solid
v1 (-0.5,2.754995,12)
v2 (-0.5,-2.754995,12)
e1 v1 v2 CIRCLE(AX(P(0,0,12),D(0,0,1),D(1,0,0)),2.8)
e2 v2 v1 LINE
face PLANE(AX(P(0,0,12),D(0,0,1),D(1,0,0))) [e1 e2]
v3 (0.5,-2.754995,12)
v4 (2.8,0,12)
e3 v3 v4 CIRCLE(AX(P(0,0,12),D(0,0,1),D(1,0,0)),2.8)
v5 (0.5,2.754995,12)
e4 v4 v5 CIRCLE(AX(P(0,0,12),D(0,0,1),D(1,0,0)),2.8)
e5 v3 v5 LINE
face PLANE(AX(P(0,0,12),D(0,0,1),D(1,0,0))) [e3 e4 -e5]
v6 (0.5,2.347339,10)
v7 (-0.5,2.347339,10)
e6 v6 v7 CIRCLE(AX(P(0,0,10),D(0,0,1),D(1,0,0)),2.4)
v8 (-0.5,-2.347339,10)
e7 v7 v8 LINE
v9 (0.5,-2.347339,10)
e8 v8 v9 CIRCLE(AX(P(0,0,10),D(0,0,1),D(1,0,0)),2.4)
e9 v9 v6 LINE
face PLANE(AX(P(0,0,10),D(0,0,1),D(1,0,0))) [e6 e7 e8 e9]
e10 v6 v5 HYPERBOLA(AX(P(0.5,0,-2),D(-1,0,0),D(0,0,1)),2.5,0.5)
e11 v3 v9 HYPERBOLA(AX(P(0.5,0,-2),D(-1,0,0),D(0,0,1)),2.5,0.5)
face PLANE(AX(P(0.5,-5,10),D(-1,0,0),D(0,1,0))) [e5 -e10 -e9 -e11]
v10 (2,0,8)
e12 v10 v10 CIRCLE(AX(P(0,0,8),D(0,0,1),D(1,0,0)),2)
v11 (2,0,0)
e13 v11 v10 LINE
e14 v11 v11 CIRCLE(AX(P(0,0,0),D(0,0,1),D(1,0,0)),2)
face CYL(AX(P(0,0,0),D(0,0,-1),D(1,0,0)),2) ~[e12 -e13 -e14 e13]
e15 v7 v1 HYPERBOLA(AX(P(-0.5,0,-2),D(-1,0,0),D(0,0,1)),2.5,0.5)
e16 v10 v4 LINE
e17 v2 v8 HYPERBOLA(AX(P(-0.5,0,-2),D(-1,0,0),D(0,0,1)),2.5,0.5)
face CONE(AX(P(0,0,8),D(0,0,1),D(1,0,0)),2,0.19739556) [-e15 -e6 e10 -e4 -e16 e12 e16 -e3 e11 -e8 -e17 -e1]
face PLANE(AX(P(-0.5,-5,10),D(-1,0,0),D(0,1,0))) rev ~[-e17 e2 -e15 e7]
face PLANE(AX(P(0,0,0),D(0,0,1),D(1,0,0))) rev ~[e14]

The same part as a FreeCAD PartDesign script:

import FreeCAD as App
import Part
import Sketcher
Q = App.Units.Quantity

doc = App.newDocument("Part")
body = doc.addObject("PartDesign::Body", "Body")

sketch1 = body.newObject("Sketcher::SketchObject", "Sketch")
sketch1.AttachmentSupport = (doc.getObject("XY_Plane"), [""])
sketch1.MapMode = "FlatFace"
sketch1.AttachmentOffset = App.Placement(App.Vector(0, 0, 10), App.Rotation())
sketch1.addGeometry([
    Part.LineSegment(App.Vector(-0.5, 5, 0), App.Vector(-0.5, -5, 0)),
    Part.LineSegment(App.Vector(-0.5, -5, 0), App.Vector(0.5, -5, 0)),
    Part.LineSegment(App.Vector(0.5, -5, 0), App.Vector(0.5, 5, 0)),
    Part.LineSegment(App.Vector(0.5, 5, 0), App.Vector(-0.5, 5, 0)),
], False)
sketch1.addConstraint([
    Sketcher.Constraint("Coincident", 0, 2, 1, 1),
    Sketcher.Constraint("Coincident", 1, 2, 2, 1),
    Sketcher.Constraint("Coincident", 2, 2, 3, 1),
    Sketcher.Constraint("Coincident", 3, 2, 0, 1),
    Sketcher.Constraint("Vertical", 0),
    Sketcher.Constraint("Horizontal", 1),
    Sketcher.Constraint("Vertical", 2),
    Sketcher.Constraint("Horizontal", 3),
    Sketcher.Constraint("Symmetric", 0, 2, 2, 2, -1, 1),
    Sketcher.Constraint("DistanceX", 1, 1, 1, 2, Q("1 mm")),
    Sketcher.Constraint("DistanceY", 0, 2, 0, 1, Q("10 mm")),
])
pad1 = body.newObject("PartDesign::Pad", "Pad")
pad1.Profile = sketch1
pad1.Length = 2
body2 = doc.addObject("PartDesign::Body", "Body001")

sketch2 = body2.newObject("Sketcher::SketchObject", "Sketch001")
sketch2.AttachmentSupport = (doc.getObject("XZ_Plane001"), [""])
sketch2.MapMode = "FlatFace"
sketch2.addGeometry([
    Part.LineSegment(App.Vector(0, 8, 0), App.Vector(2, 8, 0)),
    Part.LineSegment(App.Vector(2, 8, 0), App.Vector(2.8, 12, 0)),
    Part.LineSegment(App.Vector(2.8, 12, 0), App.Vector(0, 12, 0)),
    Part.LineSegment(App.Vector(0, 12, 0), App.Vector(0, 8, 0)),
], False)
sketch2.addConstraint([
    Sketcher.Constraint("Coincident", 0, 2, 1, 1),
    Sketcher.Constraint("Coincident", 1, 2, 2, 1),
    Sketcher.Constraint("Coincident", 2, 2, 3, 1),
    Sketcher.Constraint("Coincident", 3, 2, 0, 1),
    Sketcher.Constraint("Horizontal", 0),
    Sketcher.Constraint("Horizontal", 2),
    Sketcher.Constraint("Vertical", 3),
    Sketcher.Constraint("PointOnObject", 2, 2, -2),
    Sketcher.Constraint("DistanceX", 0, 1, 0, 2, Q("2 mm")),
    Sketcher.Constraint("DistanceY", 3, 2, 3, 1, Q("4 mm")),
    Sketcher.Constraint("DistanceX", 2, 2, 2, 1, Q("2.8 mm")),
    Sketcher.Constraint("DistanceY", -1, 1, 0, 2, Q("8 mm")),
])
revolution = body2.newObject("PartDesign::Revolution", "Revolution")
revolution.Profile = sketch2
revolution.ReferenceAxis = (sketch2, ["V_Axis"])
revolution.Angle = 360
doc.recompute()

boolean = body2.newObject("PartDesign::Boolean", "Boolean")
boolean.Type = "Cut"
boolean.addObjects([body])
body3 = doc.addObject("PartDesign::Body", "Body002")

sketch3 = body3.newObject("Sketcher::SketchObject", "Sketch002")
sketch3.AttachmentSupport = (doc.getObject("XY_Plane002"), [""])
sketch3.MapMode = "FlatFace"
sketch3.addGeometry(Part.Circle(App.Vector(0, 0, 0), App.Vector(0, 0, 1), 2), False)
sketch3.addConstraint([
    Sketcher.Constraint("Coincident", 0, 3, -1, 1),
    Sketcher.Constraint("Diameter", 0, Q("4 mm")),
])
pad2 = body3.newObject("PartDesign::Pad", "Pad001")
pad2.Profile = sketch3
pad2.Length = 10
doc.recompute()

boolean2 = body3.newObject("PartDesign::Boolean", "Boolean001")
boolean2.Type = "Fuse"
boolean2.addObjects([body2])

doc.recompute()
